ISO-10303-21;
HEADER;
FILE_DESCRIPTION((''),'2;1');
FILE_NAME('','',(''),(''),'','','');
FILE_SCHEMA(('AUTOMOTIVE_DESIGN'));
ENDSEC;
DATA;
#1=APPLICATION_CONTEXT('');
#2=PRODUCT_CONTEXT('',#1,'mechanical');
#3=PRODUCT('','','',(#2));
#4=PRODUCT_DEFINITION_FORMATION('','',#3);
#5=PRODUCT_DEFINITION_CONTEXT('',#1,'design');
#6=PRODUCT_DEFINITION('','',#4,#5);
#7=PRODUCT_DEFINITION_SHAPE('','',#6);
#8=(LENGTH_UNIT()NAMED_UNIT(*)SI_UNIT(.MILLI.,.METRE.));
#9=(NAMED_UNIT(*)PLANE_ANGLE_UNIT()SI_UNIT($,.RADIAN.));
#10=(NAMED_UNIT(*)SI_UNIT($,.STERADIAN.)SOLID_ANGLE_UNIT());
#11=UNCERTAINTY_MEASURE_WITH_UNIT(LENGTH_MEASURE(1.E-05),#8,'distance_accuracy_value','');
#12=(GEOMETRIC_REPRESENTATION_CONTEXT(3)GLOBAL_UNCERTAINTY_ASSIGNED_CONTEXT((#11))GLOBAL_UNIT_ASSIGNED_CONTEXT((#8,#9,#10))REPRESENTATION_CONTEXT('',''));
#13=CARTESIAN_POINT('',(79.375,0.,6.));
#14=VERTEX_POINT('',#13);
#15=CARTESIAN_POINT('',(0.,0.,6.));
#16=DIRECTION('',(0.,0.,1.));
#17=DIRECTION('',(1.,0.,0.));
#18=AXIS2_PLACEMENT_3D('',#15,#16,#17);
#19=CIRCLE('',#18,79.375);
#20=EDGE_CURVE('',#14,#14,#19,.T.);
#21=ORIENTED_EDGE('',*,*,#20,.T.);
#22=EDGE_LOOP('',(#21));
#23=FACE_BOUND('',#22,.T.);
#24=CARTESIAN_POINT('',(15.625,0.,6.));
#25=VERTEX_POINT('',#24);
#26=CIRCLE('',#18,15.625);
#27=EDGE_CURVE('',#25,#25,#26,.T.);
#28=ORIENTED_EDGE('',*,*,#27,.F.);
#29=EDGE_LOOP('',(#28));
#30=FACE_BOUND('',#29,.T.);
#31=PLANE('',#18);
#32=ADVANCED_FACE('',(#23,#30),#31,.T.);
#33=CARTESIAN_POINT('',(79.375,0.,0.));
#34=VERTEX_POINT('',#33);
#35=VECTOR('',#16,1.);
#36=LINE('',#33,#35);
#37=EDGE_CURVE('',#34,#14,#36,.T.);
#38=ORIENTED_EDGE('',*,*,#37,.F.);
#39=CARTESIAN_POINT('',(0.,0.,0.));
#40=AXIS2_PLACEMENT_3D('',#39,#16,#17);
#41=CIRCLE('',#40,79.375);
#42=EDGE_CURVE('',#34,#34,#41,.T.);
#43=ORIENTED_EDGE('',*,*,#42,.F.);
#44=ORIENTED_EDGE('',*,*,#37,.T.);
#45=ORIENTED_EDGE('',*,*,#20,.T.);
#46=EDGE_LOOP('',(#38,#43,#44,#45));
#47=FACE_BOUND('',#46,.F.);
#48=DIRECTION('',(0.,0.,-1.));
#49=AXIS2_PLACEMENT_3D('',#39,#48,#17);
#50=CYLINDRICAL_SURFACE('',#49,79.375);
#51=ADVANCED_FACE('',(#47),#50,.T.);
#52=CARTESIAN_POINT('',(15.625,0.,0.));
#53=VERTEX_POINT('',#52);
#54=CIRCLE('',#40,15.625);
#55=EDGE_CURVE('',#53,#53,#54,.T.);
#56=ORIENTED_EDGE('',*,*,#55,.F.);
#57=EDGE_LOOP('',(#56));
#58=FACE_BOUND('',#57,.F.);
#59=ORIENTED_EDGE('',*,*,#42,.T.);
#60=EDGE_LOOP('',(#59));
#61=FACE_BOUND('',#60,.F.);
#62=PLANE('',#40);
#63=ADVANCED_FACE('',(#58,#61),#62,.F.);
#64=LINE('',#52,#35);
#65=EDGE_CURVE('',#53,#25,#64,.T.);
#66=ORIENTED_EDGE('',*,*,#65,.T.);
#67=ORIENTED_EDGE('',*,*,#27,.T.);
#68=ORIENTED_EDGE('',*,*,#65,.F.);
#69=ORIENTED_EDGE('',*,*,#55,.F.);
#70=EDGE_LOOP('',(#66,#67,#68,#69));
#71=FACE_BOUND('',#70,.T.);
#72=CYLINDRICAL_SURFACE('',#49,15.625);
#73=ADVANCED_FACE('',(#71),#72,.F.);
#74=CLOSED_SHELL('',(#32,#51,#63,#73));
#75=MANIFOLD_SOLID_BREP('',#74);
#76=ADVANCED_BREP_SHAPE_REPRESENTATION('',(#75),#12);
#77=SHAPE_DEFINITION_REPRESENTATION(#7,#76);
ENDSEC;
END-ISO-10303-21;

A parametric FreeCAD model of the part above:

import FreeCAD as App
import Part
import Sketcher
from FreeCAD import Vector

doc = App.newDocument("Part")
body = doc.addObject("PartDesign::Body", "Body")

# Sketch on XY plane
sketch1 = body.newObject("Sketcher::SketchObject", "Sketch")
sketch1.AttachmentSupport = (doc.getObject("XY_Plane"), [""])
sketch1.MapMode = "FlatFace"
sketch1.addGeometry([
    Part.Circle(Vector(0, 0, 0), Vector(0, 0, 1), 79),
    Part.Circle(Vector(0, 0, 0), Vector(0, 0, 1), 16),
], False)
sketch1.addConstraint([
    Sketcher.Constraint("Coincident", 0, 3, -1, 1),
    Sketcher.Constraint("Coincident", 1, 3, -1, 1),
    Sketcher.Constraint("Diameter", 0, 158.75),
    Sketcher.Constraint("Diameter", 1, 31.25),
])
pad1 = body.newObject("PartDesign::Pad", "Pad")
pad1.Profile = sketch1
pad1.Length = 6

doc.recompute()
